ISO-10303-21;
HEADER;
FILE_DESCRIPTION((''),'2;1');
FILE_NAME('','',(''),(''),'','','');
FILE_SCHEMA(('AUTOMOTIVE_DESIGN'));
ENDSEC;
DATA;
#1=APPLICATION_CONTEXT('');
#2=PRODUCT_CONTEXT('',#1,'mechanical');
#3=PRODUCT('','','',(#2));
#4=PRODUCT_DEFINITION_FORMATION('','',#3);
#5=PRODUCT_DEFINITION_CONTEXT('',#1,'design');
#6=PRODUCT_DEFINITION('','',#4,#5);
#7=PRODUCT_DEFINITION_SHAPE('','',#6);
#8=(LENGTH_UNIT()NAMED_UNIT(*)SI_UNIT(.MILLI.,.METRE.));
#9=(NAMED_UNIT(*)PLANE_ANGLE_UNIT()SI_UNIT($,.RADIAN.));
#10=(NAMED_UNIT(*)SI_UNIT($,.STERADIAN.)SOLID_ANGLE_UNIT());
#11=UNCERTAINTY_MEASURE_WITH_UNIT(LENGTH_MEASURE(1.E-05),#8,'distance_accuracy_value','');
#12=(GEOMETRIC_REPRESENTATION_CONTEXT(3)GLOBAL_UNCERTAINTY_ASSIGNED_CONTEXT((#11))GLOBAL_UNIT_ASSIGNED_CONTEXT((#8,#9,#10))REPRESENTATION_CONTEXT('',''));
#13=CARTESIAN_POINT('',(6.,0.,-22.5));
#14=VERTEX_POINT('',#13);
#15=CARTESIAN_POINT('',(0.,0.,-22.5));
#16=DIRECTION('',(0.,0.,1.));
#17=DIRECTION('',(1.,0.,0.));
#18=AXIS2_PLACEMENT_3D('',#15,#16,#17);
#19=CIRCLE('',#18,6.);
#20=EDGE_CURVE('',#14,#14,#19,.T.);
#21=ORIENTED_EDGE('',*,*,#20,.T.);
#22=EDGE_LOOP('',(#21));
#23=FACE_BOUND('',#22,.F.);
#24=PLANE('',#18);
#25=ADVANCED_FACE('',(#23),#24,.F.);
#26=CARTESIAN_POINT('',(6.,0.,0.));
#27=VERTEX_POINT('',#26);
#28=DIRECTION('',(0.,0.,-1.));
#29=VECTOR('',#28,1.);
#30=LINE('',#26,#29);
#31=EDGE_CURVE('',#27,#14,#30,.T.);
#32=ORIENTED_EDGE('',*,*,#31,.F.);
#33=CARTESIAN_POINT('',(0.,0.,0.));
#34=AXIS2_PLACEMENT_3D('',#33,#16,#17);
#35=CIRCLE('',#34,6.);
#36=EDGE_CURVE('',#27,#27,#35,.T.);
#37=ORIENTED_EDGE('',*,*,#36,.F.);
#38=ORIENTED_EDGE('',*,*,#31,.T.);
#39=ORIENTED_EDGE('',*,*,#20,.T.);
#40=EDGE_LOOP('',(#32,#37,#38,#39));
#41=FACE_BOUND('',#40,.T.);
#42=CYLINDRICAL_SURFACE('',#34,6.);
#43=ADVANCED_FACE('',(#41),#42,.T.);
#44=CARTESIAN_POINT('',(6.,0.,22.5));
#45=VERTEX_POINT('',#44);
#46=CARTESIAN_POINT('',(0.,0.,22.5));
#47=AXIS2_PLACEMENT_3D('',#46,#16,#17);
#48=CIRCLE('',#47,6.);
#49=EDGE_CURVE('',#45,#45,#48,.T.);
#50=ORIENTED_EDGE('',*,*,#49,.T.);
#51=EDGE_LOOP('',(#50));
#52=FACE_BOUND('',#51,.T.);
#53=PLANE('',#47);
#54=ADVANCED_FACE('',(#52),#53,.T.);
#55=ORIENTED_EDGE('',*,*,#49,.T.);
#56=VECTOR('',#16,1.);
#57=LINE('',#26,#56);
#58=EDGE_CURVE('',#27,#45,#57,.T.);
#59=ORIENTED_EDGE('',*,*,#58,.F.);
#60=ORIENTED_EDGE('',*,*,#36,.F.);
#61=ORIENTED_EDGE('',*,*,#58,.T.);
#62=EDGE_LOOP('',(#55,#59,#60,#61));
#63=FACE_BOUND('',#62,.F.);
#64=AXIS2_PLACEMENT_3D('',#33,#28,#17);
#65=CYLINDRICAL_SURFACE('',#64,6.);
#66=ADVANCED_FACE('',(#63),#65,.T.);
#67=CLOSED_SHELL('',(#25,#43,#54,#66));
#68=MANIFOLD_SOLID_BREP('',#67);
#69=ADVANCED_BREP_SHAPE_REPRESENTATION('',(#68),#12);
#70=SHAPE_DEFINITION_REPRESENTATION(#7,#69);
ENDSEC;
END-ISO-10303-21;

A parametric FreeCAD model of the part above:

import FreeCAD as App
import Part
import Sketcher
from FreeCAD import Vector

doc = App.newDocument("Part")
body = doc.addObject("PartDesign::Body", "Body")

# Sketch on XY plane
sketch1 = body.newObject("Sketcher::SketchObject", "Sketch")
sketch1.AttachmentSupport = (doc.getObject("XY_Plane"), [""])
sketch1.MapMode = "FlatFace"
sketch1.addGeometry(Part.Circle(Vector(0, 0, 0), Vector(0, 0, 1), 6), False)
sketch1.addConstraint([
    Sketcher.Constraint("Coincident", 0, 3, -1, 1),
    Sketcher.Constraint("Diameter", 0, 12.0),
])
pad1 = body.newObject("PartDesign::Pad", "Pad")
pad1.Profile = sketch1
pad1.Length = 45
pad1.Midplane = True

doc.recompute()
